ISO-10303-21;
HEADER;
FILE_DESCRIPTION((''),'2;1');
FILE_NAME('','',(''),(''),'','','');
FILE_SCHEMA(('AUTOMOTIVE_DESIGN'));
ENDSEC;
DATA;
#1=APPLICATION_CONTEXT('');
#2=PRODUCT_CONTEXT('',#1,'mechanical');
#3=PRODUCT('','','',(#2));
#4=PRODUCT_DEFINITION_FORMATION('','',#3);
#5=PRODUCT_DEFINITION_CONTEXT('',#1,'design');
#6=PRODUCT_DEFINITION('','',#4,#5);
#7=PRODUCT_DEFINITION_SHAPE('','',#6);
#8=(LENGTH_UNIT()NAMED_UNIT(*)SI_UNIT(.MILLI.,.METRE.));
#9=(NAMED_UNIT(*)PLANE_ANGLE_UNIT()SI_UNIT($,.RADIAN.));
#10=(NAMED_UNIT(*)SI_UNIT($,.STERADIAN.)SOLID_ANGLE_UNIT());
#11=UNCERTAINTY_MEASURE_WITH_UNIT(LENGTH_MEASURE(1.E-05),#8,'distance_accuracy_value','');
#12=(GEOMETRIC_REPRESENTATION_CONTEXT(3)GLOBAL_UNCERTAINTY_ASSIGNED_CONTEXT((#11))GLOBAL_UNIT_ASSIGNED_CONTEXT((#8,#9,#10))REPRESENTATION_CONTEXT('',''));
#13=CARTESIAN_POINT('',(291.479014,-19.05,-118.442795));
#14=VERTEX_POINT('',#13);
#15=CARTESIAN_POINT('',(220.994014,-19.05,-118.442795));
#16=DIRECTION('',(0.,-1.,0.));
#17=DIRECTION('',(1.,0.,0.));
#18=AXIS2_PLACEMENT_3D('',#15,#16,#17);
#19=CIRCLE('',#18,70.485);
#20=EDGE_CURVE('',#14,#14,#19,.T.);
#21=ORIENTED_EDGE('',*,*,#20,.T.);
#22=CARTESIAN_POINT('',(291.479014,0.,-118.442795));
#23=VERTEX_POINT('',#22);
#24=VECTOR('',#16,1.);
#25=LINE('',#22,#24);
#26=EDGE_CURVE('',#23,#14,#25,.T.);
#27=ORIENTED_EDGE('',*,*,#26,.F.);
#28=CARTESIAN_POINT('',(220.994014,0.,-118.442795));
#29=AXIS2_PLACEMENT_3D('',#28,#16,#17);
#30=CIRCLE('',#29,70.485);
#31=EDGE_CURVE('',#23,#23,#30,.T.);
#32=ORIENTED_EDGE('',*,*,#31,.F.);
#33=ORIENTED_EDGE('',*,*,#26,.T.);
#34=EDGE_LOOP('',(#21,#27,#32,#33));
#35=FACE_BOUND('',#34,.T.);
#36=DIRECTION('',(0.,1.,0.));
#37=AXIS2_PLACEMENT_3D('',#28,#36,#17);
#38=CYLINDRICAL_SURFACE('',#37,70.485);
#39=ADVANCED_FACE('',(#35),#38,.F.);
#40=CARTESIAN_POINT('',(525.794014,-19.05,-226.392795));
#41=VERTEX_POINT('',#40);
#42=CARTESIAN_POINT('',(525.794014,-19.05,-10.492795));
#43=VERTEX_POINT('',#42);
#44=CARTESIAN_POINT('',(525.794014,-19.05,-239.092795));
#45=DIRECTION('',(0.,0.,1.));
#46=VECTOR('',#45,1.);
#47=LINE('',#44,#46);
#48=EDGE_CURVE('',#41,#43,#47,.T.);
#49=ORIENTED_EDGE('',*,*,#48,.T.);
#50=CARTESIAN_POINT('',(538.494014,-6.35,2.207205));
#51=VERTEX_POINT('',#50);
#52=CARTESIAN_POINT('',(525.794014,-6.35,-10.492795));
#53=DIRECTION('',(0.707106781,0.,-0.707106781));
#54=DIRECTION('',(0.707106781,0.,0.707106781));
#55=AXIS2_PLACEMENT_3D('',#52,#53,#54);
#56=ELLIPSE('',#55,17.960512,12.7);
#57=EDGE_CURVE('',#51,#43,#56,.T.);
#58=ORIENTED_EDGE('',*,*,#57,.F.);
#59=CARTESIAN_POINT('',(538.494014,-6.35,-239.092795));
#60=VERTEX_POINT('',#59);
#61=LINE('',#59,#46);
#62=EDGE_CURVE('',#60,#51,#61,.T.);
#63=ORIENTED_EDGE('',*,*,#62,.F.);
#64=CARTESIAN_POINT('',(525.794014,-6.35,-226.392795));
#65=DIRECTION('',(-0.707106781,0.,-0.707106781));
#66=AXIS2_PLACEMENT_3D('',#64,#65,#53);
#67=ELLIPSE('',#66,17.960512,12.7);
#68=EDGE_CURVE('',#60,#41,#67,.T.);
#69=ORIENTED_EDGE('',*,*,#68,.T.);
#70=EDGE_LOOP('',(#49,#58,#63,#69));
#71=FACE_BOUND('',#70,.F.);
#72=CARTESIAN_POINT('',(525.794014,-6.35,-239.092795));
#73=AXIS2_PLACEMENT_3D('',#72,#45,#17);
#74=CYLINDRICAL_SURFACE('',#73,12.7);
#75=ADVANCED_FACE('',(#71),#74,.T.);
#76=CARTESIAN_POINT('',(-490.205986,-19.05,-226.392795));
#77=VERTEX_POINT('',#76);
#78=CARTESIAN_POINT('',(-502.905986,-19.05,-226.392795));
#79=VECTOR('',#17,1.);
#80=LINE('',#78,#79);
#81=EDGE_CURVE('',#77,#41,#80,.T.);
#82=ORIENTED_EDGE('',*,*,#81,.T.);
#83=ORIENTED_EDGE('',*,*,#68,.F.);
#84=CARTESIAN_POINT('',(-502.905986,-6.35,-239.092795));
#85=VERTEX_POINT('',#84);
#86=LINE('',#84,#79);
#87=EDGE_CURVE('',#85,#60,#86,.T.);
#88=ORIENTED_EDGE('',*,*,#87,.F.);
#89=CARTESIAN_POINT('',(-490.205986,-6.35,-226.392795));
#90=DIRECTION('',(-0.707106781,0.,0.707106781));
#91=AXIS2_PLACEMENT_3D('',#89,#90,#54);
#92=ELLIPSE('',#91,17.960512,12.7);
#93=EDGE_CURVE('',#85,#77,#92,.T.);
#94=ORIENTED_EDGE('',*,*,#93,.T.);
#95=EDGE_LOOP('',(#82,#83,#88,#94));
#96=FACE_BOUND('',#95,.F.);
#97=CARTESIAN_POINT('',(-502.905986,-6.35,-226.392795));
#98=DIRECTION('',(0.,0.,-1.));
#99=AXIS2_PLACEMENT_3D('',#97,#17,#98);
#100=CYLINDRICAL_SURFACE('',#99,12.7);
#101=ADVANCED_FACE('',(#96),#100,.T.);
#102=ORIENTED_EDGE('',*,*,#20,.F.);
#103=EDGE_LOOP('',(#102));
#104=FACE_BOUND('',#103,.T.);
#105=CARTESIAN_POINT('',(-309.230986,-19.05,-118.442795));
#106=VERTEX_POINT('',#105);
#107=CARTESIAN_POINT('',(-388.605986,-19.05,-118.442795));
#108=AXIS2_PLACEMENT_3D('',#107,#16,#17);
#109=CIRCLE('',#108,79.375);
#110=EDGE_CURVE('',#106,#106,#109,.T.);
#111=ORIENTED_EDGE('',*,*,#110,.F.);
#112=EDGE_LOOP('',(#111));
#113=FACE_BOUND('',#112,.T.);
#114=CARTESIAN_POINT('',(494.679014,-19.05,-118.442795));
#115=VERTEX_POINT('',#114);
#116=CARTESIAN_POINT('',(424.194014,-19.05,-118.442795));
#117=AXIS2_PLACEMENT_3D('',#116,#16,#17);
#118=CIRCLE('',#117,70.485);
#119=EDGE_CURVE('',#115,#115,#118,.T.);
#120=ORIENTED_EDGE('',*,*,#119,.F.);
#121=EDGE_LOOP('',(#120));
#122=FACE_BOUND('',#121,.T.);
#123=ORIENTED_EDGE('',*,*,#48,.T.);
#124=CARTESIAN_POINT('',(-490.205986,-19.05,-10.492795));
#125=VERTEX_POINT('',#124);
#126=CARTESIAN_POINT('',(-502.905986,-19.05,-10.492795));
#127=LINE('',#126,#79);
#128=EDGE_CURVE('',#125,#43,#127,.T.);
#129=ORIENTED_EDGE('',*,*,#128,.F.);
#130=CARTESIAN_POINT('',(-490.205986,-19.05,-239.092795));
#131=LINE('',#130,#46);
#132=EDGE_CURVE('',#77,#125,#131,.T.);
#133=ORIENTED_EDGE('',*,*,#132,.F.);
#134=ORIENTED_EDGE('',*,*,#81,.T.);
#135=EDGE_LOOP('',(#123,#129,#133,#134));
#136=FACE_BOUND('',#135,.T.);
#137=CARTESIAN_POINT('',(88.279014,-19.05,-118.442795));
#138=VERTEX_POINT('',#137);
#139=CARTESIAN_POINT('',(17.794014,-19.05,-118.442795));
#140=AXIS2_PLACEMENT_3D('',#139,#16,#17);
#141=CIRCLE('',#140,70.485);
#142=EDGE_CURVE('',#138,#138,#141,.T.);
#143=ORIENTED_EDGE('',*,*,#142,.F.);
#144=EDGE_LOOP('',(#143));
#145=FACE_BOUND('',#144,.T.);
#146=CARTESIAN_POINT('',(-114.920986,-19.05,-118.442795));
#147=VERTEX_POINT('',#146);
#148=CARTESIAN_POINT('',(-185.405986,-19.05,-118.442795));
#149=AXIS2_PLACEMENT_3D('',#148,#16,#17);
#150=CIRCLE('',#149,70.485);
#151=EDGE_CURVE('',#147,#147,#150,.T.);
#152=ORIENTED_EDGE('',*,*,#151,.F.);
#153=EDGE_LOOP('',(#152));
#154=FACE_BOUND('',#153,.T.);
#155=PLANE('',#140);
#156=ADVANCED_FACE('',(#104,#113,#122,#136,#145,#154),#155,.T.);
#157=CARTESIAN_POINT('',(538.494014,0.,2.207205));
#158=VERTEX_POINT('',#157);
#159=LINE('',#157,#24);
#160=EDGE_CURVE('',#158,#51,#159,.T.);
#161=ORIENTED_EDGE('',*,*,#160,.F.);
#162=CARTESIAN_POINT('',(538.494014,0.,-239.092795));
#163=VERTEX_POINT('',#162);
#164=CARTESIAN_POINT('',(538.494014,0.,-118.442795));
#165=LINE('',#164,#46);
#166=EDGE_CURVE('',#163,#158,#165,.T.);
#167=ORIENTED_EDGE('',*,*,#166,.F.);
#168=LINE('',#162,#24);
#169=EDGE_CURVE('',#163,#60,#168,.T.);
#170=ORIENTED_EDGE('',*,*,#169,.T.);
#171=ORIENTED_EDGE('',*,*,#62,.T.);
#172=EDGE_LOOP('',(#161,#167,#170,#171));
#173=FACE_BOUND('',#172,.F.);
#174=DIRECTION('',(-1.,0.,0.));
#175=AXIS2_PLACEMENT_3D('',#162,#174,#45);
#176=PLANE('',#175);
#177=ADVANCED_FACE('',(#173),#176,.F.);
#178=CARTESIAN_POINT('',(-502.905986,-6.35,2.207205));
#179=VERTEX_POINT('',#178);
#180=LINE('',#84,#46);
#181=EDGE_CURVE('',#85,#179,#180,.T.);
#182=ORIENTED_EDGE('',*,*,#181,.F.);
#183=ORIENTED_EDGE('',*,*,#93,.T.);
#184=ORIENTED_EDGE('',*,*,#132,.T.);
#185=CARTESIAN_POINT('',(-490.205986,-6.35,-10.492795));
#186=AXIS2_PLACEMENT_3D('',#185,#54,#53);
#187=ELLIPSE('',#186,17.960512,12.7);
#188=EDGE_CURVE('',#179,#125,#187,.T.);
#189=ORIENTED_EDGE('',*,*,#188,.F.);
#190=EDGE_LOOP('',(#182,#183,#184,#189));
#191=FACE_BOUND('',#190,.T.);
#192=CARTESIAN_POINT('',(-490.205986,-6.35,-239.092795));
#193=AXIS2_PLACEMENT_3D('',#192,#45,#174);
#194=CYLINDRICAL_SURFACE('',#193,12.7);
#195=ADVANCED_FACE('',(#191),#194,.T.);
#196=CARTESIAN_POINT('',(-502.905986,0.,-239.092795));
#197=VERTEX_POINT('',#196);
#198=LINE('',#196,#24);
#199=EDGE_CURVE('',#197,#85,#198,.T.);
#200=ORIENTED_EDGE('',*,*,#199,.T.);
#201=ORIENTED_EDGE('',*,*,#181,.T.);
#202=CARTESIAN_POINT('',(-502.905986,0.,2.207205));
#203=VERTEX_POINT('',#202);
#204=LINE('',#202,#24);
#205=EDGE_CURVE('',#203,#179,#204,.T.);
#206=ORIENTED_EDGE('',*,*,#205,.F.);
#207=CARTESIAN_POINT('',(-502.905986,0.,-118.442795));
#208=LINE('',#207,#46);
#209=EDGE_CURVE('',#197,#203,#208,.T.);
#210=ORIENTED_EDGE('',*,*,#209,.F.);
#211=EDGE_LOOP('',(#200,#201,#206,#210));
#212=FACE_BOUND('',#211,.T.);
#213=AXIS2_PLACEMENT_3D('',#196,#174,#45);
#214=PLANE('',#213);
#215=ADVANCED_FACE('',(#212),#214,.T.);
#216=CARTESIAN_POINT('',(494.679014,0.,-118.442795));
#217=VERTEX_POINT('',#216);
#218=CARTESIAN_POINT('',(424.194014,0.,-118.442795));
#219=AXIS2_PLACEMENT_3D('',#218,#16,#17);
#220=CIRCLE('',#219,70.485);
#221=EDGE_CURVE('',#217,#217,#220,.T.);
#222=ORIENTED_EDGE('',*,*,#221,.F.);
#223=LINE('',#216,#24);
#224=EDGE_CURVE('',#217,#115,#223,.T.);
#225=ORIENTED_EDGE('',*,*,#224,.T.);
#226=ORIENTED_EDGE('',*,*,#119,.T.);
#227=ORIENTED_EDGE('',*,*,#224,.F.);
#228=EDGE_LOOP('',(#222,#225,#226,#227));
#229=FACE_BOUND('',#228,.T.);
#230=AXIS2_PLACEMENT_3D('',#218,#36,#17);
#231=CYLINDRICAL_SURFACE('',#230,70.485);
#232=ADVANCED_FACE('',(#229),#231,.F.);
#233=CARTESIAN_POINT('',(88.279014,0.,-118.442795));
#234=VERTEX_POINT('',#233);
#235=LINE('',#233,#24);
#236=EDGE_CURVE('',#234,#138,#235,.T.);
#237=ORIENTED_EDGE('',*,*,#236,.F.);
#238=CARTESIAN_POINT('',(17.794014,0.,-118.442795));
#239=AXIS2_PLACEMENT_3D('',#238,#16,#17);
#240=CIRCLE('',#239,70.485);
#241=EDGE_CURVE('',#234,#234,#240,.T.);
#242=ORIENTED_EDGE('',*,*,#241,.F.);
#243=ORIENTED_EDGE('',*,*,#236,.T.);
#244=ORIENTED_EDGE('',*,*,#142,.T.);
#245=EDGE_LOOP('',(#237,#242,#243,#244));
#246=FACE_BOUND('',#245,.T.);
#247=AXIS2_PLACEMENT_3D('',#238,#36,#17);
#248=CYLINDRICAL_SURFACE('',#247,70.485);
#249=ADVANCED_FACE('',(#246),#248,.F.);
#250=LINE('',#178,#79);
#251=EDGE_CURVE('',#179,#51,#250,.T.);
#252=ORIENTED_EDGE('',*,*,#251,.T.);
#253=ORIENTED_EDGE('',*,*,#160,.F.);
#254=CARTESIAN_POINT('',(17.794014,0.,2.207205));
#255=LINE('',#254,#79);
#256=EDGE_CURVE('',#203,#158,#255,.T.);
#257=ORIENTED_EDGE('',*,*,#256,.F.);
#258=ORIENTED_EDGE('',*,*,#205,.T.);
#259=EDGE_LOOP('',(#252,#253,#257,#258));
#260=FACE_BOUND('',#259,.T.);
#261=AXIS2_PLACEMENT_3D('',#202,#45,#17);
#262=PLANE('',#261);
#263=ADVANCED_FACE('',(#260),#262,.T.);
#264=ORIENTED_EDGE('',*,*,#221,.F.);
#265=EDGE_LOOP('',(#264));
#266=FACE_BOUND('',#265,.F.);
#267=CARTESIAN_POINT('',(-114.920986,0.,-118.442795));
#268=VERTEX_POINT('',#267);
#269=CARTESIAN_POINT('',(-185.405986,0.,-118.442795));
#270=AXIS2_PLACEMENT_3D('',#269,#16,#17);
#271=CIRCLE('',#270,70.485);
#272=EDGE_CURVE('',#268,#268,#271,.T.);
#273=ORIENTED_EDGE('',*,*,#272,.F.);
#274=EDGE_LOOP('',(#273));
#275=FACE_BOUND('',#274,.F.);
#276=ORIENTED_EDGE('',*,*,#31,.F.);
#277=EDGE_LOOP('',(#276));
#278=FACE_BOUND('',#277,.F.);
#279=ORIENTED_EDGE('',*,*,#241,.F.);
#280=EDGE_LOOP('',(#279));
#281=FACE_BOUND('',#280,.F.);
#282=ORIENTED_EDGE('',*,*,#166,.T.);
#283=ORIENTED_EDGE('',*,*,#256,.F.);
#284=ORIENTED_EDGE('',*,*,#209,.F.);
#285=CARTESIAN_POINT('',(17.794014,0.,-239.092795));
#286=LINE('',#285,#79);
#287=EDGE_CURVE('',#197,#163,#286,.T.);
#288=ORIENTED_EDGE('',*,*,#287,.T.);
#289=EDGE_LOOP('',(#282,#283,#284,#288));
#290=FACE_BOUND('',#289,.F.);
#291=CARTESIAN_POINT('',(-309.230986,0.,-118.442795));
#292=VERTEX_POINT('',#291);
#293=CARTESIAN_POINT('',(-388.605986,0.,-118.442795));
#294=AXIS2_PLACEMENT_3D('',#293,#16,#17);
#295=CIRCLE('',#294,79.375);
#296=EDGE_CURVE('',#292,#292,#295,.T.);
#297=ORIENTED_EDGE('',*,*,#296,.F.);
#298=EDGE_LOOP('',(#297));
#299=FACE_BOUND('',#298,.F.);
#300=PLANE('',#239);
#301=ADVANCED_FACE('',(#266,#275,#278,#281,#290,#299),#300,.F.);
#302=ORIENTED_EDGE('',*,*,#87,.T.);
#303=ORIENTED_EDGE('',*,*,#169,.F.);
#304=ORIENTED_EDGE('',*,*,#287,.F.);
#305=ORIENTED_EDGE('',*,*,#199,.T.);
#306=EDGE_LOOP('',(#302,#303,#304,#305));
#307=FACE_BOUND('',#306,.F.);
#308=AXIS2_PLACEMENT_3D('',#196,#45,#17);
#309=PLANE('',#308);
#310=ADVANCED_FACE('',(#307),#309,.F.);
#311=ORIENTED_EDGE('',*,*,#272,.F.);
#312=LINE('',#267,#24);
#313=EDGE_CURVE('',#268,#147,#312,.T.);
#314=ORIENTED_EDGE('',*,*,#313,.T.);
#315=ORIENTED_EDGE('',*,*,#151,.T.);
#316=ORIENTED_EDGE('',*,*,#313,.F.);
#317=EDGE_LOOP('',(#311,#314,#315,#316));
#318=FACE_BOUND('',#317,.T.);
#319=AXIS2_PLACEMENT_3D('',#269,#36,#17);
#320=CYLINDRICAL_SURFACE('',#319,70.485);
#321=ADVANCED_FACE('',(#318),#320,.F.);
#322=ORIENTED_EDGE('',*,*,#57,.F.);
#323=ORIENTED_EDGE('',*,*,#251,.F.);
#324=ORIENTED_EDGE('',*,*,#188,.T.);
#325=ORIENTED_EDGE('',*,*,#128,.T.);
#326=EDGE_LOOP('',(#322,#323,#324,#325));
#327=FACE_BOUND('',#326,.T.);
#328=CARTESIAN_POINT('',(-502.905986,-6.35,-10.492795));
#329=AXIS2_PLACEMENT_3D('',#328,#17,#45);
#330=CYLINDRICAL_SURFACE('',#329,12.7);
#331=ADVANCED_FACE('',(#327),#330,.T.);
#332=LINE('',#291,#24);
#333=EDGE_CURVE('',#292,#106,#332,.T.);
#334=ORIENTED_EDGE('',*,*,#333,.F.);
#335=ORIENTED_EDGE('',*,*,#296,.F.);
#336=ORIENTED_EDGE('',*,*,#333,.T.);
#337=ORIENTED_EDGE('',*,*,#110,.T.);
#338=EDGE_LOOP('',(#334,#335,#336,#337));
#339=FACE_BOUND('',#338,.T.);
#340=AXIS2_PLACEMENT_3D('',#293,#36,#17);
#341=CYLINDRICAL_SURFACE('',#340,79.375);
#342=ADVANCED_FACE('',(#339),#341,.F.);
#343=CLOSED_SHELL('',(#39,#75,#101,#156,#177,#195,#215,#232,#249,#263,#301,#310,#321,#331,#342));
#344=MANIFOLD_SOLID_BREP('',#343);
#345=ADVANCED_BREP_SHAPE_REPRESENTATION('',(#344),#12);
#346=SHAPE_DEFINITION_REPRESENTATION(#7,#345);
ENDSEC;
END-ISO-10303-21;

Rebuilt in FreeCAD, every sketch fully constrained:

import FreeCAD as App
import Part
import Sketcher
from FreeCAD import Vector
Q = App.Units.Quantity


def edges_at(feature, points):
    """Names of the edges that pass closest to the given points."""
    edges = feature.Shape.Edges
    near = lambda p: min(range(len(edges)), key=lambda i: edges[i].distToShape(Part.Vertex(*p))[0])
    return sorted({f"Edge{near(p) + 1}" for p in points})

doc = App.newDocument("Part")
params = doc.addObject("Spreadsheet::Sheet", "Params")
for row, (alias, value) in enumerate([
    ("sketch1_diameter", "6.25 in"),
    ("sketch1_diameter2", "5.55 in"),
    ("sketch1_width", "41 in"),
    ("sketch1_height", "9.5 in"),
    ("pad1_length", "0.75 in"),
    ("fillet_radius", "0.5 in"),
], start=1):
    params.set(f"A{row}", alias)
    params.set(f"B{row}", "=" + value)
    params.setAlias(f"B{row}", alias)

body = doc.addObject("PartDesign::Body", "Body")

# Sketch on XZ plane
sketch1 = body.newObject("Sketcher::SketchObject", "Sketch")
sketch1.AttachmentSupport = (doc.getObject("XZ_Plane"), [""])
sketch1.MapMode = "FlatFace"
sketch1.addGeometry([
    Part.LineSegment(Vector(-503, 2, 0), Vector(-503, -239, 0)),  # 0
    Part.LineSegment(Vector(-503, -239, 0), Vector(538, -239, 0)),  # 1
    Part.LineSegment(Vector(538, -239, 0), Vector(538, 2, 0)),  # 2
    Part.LineSegment(Vector(538, 2, 0), Vector(-503, 2, 0)),  # 3
    Part.Circle(Vector(-389, -118, 0), Vector(0, 0, 1), 79),  # 4
    Part.Circle(Vector(-185, -118, 0), Vector(0, 0, 1), 70),  # 5
    Part.Circle(Vector(18, -118, 0), Vector(0, 0, 1), 70),  # 6
    Part.Circle(Vector(221, -118, 0), Vector(0, 0, 1), 70),  # 7
    Part.Circle(Vector(424, -118, 0), Vector(0, 0, 1), 70),  # 8
], False)
sketch1.addConstraint([
    Sketcher.Constraint("Coincident", 0, 2, 1, 1),
    Sketcher.Constraint("Coincident", 1, 2, 2, 1),
    Sketcher.Constraint("Coincident", 2, 2, 3, 1),
    Sketcher.Constraint("Coincident", 3, 2, 0, 1),
    Sketcher.Constraint("Vertical", 0),
    Sketcher.Constraint("Horizontal", 1),
    Sketcher.Constraint("Vertical", 2),
    Sketcher.Constraint("Horizontal", 3),
    Sketcher.Constraint("Equal", 5, 6),
    Sketcher.Constraint("Equal", 6, 7),
    Sketcher.Constraint("Equal", 7, 8),
    Sketcher.Constraint("Horizontal", 4, 3, 5, 3),
    Sketcher.Constraint("Horizontal", 5, 3, 6, 3),
    Sketcher.Constraint("Horizontal", 6, 3, 7, 3),
    Sketcher.Constraint("Horizontal", 7, 3, 8, 3),
    Sketcher.Constraint("Diameter", 4, Q("6.25 in")),
    Sketcher.Constraint("Diameter", 5, Q("5.55 in")),
    Sketcher.Constraint("DistanceX", 1, 1, 1, 2, Q("41 in")),
    Sketcher.Constraint("DistanceY", 0, 2, 0, 1, Q("9.5 in")),
    Sketcher.Constraint("DistanceX", 4, 3, 5, 3, Q("8 in")),
    Sketcher.Constraint("DistanceX", 5, 3, 6, 3, Q("8 in")),
    Sketcher.Constraint("DistanceX", 6, 3, 7, 3, Q("8 in")),
    Sketcher.Constraint("DistanceX", 7, 3, 8, 3, Q("8 in")),
    Sketcher.Constraint("DistanceX", 0, 2, 4, 3, Q("4.5 in")),
    Sketcher.Constraint("DistanceY", 0, 2, 4, 3, Q("4.75 in")),
    Sketcher.Constraint("DistanceX", 4, 3, -1, 1, Q("388.605986 mm")),
    Sketcher.Constraint("DistanceY", 4, 3, -1, 1, Q("118.442795 mm")),
])
sketch1.setExpression("Constraints[15]", "Params.sketch1_diameter")
sketch1.setExpression("Constraints[16]", "Params.sketch1_diameter2")
sketch1.setExpression("Constraints[17]", "Params.sketch1_width")
sketch1.setExpression("Constraints[18]", "Params.sketch1_height")
pad1 = body.newObject("PartDesign::Pad", "Pad")
pad1.Profile = sketch1
pad1.setExpression("Length", "Params.pad1_length")
doc.recompute()

fillet = body.newObject("PartDesign::Fillet", "Fillet")
fillet.Base = (pad1, edges_at(pad1, [
    (17.794, -19.05, 2.207),
    (-502.906, -19.05, -118.443),
    (17.794, -19.05, -239.093),
    (538.494, -19.05, -118.443),
]))
fillet.setExpression("Radius", "Params.fillet_radius")

doc.recompute()
